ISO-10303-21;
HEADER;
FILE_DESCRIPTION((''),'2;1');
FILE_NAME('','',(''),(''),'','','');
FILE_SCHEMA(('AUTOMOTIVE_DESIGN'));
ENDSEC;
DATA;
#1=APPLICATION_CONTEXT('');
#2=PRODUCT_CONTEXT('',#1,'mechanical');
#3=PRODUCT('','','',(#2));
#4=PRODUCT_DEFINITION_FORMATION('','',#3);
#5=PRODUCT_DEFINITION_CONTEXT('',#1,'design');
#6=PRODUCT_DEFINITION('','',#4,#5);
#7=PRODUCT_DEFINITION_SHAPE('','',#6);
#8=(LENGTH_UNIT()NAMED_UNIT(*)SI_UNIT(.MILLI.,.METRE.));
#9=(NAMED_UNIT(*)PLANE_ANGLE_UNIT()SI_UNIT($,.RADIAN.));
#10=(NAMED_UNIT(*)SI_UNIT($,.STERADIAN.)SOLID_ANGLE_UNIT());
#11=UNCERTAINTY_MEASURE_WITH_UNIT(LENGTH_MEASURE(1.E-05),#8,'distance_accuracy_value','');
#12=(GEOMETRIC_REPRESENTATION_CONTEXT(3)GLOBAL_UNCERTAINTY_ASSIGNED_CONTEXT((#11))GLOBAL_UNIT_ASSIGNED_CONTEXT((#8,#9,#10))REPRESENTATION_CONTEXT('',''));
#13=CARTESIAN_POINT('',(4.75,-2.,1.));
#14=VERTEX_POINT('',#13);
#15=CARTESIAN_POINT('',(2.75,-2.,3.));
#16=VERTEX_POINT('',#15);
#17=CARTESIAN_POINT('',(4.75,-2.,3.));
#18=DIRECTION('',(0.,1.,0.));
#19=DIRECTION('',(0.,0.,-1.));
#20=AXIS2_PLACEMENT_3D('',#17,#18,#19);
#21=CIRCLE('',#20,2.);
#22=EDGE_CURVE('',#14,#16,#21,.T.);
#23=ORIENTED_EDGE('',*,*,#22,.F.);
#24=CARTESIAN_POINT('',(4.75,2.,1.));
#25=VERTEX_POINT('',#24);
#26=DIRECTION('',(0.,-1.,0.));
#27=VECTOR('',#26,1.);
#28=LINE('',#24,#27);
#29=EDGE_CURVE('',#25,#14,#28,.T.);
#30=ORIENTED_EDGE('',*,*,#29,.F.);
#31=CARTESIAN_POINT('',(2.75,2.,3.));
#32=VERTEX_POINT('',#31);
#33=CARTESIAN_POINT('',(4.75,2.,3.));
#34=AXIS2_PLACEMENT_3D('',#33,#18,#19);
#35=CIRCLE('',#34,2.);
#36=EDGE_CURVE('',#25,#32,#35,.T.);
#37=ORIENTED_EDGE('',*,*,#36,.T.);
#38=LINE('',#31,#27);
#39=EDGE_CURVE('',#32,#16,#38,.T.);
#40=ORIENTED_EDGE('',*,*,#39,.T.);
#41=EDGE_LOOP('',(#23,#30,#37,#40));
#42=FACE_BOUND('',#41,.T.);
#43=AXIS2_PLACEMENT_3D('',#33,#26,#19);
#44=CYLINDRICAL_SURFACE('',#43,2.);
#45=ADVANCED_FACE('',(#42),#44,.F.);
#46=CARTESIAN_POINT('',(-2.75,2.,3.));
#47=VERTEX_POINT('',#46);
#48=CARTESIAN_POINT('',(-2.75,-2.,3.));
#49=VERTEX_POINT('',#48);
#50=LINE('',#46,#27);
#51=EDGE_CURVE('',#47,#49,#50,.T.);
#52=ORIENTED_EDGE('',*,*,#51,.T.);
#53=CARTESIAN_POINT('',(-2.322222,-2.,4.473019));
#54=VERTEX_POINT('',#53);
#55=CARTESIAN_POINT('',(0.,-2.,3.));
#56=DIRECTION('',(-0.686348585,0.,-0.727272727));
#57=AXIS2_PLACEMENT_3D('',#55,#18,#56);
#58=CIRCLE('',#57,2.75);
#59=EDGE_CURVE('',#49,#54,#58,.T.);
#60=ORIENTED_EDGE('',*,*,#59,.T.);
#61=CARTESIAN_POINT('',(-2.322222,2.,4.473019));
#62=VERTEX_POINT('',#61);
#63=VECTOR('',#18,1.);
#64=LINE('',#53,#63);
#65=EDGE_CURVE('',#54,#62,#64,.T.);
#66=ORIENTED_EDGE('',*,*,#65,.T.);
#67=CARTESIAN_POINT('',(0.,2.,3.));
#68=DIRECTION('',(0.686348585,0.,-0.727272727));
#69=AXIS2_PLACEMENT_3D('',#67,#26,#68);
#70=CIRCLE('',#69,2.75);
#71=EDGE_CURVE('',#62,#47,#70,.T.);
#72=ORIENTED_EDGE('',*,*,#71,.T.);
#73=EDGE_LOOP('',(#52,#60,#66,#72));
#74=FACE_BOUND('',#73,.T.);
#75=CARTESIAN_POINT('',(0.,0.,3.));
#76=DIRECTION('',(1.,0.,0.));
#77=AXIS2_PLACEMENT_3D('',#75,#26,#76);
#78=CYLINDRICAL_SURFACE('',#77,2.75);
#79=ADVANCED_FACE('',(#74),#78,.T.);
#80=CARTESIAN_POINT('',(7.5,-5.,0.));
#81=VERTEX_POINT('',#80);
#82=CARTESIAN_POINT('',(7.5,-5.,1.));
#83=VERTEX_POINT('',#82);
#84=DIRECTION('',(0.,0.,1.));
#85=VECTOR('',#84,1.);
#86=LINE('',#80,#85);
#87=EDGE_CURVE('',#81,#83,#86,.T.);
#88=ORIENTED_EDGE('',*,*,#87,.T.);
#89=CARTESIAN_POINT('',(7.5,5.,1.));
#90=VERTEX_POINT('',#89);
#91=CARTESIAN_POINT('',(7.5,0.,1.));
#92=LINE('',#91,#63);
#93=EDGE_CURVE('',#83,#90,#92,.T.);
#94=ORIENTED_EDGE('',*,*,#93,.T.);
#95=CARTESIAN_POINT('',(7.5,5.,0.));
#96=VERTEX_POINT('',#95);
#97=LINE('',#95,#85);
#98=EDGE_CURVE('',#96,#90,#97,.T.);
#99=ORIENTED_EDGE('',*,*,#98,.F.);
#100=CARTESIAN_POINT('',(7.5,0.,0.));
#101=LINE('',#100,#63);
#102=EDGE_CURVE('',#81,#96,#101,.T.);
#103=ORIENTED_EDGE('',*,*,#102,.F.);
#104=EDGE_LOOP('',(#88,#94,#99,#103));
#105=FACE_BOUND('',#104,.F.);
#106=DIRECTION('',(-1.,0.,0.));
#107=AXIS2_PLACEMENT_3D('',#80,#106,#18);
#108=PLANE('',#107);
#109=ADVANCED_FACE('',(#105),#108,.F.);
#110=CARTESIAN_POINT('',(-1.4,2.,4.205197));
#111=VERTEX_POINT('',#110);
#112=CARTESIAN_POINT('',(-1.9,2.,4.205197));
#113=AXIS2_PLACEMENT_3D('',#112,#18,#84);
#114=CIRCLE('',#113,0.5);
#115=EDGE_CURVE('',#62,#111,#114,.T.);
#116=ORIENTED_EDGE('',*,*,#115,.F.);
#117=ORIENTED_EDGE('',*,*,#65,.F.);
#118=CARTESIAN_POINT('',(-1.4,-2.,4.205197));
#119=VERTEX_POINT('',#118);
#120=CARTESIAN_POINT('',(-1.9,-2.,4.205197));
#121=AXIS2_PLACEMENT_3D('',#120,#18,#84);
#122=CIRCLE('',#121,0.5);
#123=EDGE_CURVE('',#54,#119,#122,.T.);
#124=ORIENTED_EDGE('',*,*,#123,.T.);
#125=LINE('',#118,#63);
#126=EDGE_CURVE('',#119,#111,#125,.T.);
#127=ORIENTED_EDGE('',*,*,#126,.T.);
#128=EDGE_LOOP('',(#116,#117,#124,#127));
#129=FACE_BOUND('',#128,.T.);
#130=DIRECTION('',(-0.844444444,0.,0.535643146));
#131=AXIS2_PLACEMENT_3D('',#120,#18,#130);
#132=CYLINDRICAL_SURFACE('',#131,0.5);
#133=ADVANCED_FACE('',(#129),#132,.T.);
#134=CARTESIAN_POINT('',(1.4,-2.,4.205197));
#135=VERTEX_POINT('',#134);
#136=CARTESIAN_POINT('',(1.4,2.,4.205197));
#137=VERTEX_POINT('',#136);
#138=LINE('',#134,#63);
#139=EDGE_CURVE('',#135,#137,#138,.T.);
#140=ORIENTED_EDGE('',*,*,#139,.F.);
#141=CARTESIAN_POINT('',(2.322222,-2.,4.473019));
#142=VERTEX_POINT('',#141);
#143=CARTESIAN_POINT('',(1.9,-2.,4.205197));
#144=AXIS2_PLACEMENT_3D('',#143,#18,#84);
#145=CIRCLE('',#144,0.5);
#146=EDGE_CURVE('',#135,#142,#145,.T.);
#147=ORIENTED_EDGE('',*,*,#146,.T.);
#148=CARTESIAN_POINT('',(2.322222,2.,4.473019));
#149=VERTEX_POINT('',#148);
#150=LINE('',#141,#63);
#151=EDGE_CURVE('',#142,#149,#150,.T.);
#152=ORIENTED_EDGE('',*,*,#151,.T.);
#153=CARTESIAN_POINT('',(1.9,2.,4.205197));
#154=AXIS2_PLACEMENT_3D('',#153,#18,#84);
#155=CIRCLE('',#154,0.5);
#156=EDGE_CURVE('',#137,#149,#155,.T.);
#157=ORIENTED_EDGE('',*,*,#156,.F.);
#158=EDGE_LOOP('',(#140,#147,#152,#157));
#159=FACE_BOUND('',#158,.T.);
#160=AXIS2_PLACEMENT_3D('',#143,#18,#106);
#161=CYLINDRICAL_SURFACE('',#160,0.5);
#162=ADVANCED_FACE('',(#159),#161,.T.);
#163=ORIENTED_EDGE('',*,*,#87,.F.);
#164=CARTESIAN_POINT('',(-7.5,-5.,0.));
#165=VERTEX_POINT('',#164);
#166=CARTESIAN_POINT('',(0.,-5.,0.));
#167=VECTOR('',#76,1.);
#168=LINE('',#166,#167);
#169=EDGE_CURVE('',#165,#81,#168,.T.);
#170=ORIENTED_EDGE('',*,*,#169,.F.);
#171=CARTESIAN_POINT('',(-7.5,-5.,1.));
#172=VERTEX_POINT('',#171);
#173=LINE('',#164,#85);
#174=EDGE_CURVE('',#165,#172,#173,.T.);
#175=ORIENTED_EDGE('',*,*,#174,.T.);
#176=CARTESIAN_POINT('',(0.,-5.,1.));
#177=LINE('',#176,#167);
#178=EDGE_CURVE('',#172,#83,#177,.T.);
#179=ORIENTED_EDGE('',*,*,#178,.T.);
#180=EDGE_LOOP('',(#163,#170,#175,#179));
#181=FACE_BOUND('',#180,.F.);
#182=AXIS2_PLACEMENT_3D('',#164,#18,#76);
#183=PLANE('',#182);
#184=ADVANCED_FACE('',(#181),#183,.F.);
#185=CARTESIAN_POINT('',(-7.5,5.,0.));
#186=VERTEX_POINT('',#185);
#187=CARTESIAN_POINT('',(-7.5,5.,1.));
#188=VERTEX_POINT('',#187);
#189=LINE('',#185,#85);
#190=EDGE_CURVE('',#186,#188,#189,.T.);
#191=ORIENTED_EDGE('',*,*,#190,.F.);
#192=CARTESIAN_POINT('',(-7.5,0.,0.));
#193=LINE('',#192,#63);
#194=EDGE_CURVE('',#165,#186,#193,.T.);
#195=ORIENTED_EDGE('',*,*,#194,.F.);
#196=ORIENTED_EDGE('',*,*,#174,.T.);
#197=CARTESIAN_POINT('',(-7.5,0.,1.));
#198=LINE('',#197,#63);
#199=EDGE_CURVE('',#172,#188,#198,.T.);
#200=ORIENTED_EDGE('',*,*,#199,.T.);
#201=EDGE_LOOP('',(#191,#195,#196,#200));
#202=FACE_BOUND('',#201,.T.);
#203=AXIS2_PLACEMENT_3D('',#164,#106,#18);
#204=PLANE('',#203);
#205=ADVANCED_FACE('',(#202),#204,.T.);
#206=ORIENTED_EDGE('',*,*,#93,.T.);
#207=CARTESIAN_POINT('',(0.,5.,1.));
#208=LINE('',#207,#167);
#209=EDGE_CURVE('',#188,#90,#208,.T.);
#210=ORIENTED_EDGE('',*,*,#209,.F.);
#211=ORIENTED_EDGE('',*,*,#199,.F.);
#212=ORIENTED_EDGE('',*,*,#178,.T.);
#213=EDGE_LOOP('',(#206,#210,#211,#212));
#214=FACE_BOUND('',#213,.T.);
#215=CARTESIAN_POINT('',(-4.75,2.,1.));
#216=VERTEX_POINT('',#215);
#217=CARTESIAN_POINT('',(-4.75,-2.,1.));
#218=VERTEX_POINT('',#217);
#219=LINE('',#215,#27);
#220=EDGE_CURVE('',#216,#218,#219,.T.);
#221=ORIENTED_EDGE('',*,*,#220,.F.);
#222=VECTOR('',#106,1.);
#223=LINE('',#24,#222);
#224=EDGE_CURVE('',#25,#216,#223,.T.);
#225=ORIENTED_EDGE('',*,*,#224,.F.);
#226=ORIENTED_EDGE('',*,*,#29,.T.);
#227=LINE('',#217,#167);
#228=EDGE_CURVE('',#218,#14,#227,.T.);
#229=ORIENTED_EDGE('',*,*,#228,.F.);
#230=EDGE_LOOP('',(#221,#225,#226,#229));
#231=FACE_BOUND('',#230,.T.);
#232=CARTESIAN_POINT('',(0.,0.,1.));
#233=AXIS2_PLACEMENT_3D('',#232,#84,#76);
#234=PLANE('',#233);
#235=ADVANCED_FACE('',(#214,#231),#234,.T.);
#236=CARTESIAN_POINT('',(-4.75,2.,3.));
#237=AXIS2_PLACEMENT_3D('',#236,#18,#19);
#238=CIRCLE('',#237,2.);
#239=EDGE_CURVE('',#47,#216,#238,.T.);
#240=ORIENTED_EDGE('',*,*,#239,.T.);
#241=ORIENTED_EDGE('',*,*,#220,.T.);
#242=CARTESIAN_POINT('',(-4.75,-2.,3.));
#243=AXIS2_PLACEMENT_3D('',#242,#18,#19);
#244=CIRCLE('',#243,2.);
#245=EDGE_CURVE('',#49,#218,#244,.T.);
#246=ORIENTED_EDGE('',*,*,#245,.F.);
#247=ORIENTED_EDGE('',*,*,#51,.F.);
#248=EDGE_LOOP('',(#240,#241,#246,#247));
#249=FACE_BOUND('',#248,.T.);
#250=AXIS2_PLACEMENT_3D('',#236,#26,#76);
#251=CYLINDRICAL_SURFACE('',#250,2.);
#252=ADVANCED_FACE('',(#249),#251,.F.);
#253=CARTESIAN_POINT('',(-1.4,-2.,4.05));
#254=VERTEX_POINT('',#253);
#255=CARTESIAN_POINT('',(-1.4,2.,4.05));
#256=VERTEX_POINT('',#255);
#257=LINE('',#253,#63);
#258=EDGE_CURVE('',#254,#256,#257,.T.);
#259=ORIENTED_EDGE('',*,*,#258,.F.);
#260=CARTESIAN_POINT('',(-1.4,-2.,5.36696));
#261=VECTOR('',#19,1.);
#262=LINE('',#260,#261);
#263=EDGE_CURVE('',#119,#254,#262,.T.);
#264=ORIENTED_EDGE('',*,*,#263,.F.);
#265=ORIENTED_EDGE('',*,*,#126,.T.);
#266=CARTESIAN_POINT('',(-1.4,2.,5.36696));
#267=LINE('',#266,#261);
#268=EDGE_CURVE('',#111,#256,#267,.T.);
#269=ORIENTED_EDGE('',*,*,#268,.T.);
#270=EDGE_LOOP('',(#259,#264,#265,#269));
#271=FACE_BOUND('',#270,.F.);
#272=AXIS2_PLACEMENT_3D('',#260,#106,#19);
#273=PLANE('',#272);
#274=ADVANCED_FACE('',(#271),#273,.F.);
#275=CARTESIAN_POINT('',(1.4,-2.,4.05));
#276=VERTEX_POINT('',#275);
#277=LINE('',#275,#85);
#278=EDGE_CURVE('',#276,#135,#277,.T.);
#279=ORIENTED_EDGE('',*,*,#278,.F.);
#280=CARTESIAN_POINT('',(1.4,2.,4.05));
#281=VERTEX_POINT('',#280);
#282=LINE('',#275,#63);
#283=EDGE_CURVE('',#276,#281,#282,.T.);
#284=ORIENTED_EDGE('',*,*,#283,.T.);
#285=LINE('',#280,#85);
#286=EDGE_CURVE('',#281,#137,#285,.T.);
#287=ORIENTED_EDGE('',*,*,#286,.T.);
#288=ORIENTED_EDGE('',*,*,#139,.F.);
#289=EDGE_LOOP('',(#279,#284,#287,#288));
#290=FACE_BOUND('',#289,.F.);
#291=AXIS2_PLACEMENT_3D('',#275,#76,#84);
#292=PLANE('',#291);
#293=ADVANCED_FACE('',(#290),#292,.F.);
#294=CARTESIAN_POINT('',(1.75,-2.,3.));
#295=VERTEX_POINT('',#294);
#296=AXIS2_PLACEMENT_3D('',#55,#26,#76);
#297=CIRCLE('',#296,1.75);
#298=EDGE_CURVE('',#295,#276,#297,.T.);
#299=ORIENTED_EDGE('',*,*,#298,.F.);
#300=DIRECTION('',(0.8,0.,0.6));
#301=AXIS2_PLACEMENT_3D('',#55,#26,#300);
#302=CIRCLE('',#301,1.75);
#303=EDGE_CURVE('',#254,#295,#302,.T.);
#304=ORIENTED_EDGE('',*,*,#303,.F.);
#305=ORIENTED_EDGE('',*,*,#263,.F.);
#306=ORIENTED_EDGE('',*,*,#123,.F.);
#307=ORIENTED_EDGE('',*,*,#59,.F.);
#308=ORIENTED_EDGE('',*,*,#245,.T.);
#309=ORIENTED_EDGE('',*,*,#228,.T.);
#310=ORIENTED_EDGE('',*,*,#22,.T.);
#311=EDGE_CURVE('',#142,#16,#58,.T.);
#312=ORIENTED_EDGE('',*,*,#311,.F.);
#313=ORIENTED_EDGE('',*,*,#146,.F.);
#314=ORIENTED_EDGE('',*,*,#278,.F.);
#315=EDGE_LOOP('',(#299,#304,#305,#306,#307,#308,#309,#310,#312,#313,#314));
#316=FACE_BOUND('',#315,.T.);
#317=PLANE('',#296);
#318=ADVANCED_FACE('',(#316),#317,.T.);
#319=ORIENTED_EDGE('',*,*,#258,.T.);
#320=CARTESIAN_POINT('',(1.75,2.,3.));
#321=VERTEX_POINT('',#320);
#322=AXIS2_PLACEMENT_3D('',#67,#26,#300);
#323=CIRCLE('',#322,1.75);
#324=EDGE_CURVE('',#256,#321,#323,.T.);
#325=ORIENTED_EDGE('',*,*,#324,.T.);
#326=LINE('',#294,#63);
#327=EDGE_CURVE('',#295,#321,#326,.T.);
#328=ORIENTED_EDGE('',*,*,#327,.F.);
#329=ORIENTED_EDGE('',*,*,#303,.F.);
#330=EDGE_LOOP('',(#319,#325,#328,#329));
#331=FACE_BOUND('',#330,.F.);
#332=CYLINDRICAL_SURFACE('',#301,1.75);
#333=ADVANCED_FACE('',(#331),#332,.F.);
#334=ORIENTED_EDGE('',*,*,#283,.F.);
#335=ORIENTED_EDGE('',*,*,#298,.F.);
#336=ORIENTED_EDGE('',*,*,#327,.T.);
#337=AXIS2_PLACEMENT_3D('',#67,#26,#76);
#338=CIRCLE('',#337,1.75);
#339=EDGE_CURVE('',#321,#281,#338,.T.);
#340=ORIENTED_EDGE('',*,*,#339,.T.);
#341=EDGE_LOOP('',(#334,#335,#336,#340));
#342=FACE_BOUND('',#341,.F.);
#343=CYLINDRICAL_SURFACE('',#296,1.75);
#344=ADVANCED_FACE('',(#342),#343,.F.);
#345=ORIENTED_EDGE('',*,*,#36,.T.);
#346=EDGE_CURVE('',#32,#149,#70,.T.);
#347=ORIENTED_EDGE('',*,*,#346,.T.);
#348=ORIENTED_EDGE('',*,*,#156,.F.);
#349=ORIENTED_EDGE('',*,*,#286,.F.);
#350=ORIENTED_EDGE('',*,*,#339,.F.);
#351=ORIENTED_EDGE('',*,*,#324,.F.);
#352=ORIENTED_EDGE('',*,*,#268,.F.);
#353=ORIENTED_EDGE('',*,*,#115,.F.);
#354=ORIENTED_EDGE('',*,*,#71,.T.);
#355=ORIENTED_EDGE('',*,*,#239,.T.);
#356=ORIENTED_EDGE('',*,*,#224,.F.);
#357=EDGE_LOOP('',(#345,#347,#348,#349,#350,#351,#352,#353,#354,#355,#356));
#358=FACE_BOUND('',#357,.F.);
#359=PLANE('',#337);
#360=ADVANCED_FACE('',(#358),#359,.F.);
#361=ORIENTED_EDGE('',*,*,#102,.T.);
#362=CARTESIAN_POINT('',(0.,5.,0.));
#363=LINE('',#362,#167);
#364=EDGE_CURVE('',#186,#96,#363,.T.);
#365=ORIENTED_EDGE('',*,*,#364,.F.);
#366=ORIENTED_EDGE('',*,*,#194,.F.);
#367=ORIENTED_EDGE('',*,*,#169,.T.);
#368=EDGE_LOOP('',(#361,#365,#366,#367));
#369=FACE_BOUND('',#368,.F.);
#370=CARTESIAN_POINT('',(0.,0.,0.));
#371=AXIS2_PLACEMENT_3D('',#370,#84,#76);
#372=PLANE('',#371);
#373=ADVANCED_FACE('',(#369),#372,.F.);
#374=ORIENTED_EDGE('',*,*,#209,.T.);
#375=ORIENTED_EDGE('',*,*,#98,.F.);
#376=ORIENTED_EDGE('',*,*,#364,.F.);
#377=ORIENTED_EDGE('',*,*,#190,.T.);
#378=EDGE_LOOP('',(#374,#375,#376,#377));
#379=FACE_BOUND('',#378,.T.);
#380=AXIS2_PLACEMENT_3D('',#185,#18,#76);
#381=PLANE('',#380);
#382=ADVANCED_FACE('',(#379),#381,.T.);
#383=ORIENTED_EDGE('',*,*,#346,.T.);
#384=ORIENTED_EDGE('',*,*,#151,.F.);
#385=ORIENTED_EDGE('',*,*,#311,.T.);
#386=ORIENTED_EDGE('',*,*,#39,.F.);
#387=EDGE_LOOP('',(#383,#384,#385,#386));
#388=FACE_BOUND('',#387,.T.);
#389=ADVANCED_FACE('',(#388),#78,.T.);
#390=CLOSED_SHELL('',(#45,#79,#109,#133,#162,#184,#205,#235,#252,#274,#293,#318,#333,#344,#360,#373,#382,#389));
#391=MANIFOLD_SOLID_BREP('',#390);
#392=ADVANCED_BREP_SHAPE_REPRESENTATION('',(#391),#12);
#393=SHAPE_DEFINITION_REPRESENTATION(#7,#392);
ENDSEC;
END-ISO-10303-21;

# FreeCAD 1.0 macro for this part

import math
import FreeCAD as App
import Part
import Sketcher
from FreeCAD import Vector


def edges_at(feature, points):
    """Names of the edges that pass closest to the given points."""
    edges = feature.Shape.Edges
    near = lambda p: min(range(len(edges)), key=lambda i: edges[i].distToShape(Part.Vertex(*p))[0])
    return sorted({f"Edge{near(p) + 1}" for p in points})

doc = App.newDocument("Part")
body = doc.addObject("PartDesign::Body", "Body")

sketch1 = body.newObject("Sketcher::SketchObject", "Sketch")
sketch1.AttachmentSupport = (doc.getObject("XY_Plane"), [""])
sketch1.MapMode = "FlatFace"
sketch1.addGeometry(Part.LineSegment(Vector(-8, 5, 0), Vector(-8, -5, 0)), False)
sketch1.addGeometry(Part.LineSegment(Vector(-8, -5, 0), Vector(8, -5, 0)), False)
sketch1.addGeometry(Part.LineSegment(Vector(8, -5, 0), Vector(8, 5, 0)), False)
sketch1.addGeometry(Part.LineSegment(Vector(8, 5, 0), Vector(-8, 5, 0)), False)
sketch1.addConstraint(Sketcher.Constraint("Coincident", 0, 2, 1, 1))
sketch1.addConstraint(Sketcher.Constraint("Coincident", 1, 2, 2, 1))
sketch1.addConstraint(Sketcher.Constraint("Coincident", 2, 2, 3, 1))
sketch1.addConstraint(Sketcher.Constraint("Coincident", 3, 2, 0, 1))
sketch1.addConstraint(Sketcher.Constraint("Vertical", 0))
sketch1.addConstraint(Sketcher.Constraint("Horizontal", 1))
sketch1.addConstraint(Sketcher.Constraint("Vertical", 2))
sketch1.addConstraint(Sketcher.Constraint("Horizontal", 3))
sketch1.addConstraint(Sketcher.Constraint("Symmetric", 0, 2, 2, 2, -1, 1))
sketch1.addConstraint(Sketcher.Constraint("DistanceX", 1, 1, 1, 2, 15.0))
sketch1.addConstraint(Sketcher.Constraint("DistanceY", 0, 2, 0, 1, 10.0))
pad1 = body.newObject("PartDesign::Pad", "Pad")
pad1.Profile = sketch1
pad1.Length = 1

sketch2 = body.newObject("Sketcher::SketchObject", "Sketch001")
sketch2.AttachmentSupport = (doc.getObject("XZ_Plane"), [""])
sketch2.MapMode = "FlatFace"
sketch2.addGeometry(Part.Circle(Vector(0, 3, 0), Vector(0, 0, 1), 2.8), False)
sketch2.addConstraint(Sketcher.Constraint("PointOnObject", 0, 3, -2))
sketch2.addConstraint(Sketcher.Constraint("Diameter", 0, 5.5))
sketch2.addConstraint(Sketcher.Constraint("DistanceY", -1, 1, 0, 3, 3.0))
pad2 = body.newObject("PartDesign::Pad", "Pad001")
pad2.Profile = sketch2
pad2.Length = 4
pad2.Midplane = True

sketch3 = body.newObject("Sketcher::SketchObject", "Sketch002")
sketch3.AttachmentSupport = (doc.getObject("XZ_Plane"), [""])
sketch3.MapMode = "FlatFace"
sketch3.AttachmentOffset = App.Placement(Vector(0, 0, 2), App.Rotation())
sketch3.addGeometry(Part.ArcOfCircle(Part.Circle(Vector(0, 3, 0), Vector(0, 0, 1), 1.8), math.radians(0), math.radians(37)), False)
sketch3.addGeometry(Part.LineSegment(Vector(1.4, 4, 0), Vector(1.4, 5.4, 0)), False)
sketch3.addGeometry(Part.ArcOfCircle(Part.Circle(Vector(0, 3, 0), Vector(0, 0, 1), 2.8), math.radians(59), math.radians(121)), False)
sketch3.addGeometry(Part.LineSegment(Vector(-1.4, 5.4, 0), Vector(-1.4, 4, 0)), False)
sketch3.addGeometry(Part.ArcOfCircle(Part.Circle(Vector(0, 3, 0), Vector(0, 0, 1), 1.8), math.radians(143), math.radians(360)), False)
sketch3.addConstraint(Sketcher.Constraint("Coincident", 0, 2, 1, 1))
sketch3.addConstraint(Sketcher.Constraint("Coincident", 1, 2, 2, 1))
sketch3.addConstraint(Sketcher.Constraint("Coincident", 2, 2, 3, 1))
sketch3.addConstraint(Sketcher.Constraint("Coincident", 3, 2, 4, 1))
sketch3.addConstraint(Sketcher.Constraint("Tangent", 4, 2, 0, 1))
sketch3.addConstraint(Sketcher.Constraint("Vertical", 1))
sketch3.addConstraint(Sketcher.Constraint("Vertical", 3))
sketch3.addConstraint(Sketcher.Constraint("Coincident", 2, 3, 0, 3))
sketch3.addConstraint(Sketcher.Constraint("Equal", 0, 4))
sketch3.addConstraint(Sketcher.Constraint("Symmetric", 1, 2, 2, 2, -2))
sketch3.addConstraint(Sketcher.Constraint("Horizontal", 2, 3, 4, 2))
sketch3.addConstraint(Sketcher.Constraint("Radius", 0, 1.75))
sketch3.addConstraint(Sketcher.Constraint("Radius", 2, 2.75))
sketch3.addConstraint(Sketcher.Constraint("DistanceY", -1, 1, 0, 3, 3.0))
sketch3.addConstraint(Sketcher.Constraint("DistanceX", -1, 1, 0, 2, 1.4))
pocket1 = body.newObject("PartDesign::Pocket", "Pocket")
pocket1.Profile = sketch3
pocket1.Type = "ThroughAll"
doc.recompute()

fillet = body.newObject("PartDesign::Fillet", "Fillet")
fillet.Base = (pocket1, edges_at(pocket1, [(-1.887, 0, 1), (1.887, 0, 1)]))
fillet.Radius = 2
doc.recompute()

fillet2 = body.newObject("PartDesign::Fillet", "Fillet001")
fillet2.Base = (fillet, edges_at(fillet, [(-1.4, 0, 5.367), (1.4, 0, 5.367)]))
fillet2.Radius = 0.5

doc.recompute()
